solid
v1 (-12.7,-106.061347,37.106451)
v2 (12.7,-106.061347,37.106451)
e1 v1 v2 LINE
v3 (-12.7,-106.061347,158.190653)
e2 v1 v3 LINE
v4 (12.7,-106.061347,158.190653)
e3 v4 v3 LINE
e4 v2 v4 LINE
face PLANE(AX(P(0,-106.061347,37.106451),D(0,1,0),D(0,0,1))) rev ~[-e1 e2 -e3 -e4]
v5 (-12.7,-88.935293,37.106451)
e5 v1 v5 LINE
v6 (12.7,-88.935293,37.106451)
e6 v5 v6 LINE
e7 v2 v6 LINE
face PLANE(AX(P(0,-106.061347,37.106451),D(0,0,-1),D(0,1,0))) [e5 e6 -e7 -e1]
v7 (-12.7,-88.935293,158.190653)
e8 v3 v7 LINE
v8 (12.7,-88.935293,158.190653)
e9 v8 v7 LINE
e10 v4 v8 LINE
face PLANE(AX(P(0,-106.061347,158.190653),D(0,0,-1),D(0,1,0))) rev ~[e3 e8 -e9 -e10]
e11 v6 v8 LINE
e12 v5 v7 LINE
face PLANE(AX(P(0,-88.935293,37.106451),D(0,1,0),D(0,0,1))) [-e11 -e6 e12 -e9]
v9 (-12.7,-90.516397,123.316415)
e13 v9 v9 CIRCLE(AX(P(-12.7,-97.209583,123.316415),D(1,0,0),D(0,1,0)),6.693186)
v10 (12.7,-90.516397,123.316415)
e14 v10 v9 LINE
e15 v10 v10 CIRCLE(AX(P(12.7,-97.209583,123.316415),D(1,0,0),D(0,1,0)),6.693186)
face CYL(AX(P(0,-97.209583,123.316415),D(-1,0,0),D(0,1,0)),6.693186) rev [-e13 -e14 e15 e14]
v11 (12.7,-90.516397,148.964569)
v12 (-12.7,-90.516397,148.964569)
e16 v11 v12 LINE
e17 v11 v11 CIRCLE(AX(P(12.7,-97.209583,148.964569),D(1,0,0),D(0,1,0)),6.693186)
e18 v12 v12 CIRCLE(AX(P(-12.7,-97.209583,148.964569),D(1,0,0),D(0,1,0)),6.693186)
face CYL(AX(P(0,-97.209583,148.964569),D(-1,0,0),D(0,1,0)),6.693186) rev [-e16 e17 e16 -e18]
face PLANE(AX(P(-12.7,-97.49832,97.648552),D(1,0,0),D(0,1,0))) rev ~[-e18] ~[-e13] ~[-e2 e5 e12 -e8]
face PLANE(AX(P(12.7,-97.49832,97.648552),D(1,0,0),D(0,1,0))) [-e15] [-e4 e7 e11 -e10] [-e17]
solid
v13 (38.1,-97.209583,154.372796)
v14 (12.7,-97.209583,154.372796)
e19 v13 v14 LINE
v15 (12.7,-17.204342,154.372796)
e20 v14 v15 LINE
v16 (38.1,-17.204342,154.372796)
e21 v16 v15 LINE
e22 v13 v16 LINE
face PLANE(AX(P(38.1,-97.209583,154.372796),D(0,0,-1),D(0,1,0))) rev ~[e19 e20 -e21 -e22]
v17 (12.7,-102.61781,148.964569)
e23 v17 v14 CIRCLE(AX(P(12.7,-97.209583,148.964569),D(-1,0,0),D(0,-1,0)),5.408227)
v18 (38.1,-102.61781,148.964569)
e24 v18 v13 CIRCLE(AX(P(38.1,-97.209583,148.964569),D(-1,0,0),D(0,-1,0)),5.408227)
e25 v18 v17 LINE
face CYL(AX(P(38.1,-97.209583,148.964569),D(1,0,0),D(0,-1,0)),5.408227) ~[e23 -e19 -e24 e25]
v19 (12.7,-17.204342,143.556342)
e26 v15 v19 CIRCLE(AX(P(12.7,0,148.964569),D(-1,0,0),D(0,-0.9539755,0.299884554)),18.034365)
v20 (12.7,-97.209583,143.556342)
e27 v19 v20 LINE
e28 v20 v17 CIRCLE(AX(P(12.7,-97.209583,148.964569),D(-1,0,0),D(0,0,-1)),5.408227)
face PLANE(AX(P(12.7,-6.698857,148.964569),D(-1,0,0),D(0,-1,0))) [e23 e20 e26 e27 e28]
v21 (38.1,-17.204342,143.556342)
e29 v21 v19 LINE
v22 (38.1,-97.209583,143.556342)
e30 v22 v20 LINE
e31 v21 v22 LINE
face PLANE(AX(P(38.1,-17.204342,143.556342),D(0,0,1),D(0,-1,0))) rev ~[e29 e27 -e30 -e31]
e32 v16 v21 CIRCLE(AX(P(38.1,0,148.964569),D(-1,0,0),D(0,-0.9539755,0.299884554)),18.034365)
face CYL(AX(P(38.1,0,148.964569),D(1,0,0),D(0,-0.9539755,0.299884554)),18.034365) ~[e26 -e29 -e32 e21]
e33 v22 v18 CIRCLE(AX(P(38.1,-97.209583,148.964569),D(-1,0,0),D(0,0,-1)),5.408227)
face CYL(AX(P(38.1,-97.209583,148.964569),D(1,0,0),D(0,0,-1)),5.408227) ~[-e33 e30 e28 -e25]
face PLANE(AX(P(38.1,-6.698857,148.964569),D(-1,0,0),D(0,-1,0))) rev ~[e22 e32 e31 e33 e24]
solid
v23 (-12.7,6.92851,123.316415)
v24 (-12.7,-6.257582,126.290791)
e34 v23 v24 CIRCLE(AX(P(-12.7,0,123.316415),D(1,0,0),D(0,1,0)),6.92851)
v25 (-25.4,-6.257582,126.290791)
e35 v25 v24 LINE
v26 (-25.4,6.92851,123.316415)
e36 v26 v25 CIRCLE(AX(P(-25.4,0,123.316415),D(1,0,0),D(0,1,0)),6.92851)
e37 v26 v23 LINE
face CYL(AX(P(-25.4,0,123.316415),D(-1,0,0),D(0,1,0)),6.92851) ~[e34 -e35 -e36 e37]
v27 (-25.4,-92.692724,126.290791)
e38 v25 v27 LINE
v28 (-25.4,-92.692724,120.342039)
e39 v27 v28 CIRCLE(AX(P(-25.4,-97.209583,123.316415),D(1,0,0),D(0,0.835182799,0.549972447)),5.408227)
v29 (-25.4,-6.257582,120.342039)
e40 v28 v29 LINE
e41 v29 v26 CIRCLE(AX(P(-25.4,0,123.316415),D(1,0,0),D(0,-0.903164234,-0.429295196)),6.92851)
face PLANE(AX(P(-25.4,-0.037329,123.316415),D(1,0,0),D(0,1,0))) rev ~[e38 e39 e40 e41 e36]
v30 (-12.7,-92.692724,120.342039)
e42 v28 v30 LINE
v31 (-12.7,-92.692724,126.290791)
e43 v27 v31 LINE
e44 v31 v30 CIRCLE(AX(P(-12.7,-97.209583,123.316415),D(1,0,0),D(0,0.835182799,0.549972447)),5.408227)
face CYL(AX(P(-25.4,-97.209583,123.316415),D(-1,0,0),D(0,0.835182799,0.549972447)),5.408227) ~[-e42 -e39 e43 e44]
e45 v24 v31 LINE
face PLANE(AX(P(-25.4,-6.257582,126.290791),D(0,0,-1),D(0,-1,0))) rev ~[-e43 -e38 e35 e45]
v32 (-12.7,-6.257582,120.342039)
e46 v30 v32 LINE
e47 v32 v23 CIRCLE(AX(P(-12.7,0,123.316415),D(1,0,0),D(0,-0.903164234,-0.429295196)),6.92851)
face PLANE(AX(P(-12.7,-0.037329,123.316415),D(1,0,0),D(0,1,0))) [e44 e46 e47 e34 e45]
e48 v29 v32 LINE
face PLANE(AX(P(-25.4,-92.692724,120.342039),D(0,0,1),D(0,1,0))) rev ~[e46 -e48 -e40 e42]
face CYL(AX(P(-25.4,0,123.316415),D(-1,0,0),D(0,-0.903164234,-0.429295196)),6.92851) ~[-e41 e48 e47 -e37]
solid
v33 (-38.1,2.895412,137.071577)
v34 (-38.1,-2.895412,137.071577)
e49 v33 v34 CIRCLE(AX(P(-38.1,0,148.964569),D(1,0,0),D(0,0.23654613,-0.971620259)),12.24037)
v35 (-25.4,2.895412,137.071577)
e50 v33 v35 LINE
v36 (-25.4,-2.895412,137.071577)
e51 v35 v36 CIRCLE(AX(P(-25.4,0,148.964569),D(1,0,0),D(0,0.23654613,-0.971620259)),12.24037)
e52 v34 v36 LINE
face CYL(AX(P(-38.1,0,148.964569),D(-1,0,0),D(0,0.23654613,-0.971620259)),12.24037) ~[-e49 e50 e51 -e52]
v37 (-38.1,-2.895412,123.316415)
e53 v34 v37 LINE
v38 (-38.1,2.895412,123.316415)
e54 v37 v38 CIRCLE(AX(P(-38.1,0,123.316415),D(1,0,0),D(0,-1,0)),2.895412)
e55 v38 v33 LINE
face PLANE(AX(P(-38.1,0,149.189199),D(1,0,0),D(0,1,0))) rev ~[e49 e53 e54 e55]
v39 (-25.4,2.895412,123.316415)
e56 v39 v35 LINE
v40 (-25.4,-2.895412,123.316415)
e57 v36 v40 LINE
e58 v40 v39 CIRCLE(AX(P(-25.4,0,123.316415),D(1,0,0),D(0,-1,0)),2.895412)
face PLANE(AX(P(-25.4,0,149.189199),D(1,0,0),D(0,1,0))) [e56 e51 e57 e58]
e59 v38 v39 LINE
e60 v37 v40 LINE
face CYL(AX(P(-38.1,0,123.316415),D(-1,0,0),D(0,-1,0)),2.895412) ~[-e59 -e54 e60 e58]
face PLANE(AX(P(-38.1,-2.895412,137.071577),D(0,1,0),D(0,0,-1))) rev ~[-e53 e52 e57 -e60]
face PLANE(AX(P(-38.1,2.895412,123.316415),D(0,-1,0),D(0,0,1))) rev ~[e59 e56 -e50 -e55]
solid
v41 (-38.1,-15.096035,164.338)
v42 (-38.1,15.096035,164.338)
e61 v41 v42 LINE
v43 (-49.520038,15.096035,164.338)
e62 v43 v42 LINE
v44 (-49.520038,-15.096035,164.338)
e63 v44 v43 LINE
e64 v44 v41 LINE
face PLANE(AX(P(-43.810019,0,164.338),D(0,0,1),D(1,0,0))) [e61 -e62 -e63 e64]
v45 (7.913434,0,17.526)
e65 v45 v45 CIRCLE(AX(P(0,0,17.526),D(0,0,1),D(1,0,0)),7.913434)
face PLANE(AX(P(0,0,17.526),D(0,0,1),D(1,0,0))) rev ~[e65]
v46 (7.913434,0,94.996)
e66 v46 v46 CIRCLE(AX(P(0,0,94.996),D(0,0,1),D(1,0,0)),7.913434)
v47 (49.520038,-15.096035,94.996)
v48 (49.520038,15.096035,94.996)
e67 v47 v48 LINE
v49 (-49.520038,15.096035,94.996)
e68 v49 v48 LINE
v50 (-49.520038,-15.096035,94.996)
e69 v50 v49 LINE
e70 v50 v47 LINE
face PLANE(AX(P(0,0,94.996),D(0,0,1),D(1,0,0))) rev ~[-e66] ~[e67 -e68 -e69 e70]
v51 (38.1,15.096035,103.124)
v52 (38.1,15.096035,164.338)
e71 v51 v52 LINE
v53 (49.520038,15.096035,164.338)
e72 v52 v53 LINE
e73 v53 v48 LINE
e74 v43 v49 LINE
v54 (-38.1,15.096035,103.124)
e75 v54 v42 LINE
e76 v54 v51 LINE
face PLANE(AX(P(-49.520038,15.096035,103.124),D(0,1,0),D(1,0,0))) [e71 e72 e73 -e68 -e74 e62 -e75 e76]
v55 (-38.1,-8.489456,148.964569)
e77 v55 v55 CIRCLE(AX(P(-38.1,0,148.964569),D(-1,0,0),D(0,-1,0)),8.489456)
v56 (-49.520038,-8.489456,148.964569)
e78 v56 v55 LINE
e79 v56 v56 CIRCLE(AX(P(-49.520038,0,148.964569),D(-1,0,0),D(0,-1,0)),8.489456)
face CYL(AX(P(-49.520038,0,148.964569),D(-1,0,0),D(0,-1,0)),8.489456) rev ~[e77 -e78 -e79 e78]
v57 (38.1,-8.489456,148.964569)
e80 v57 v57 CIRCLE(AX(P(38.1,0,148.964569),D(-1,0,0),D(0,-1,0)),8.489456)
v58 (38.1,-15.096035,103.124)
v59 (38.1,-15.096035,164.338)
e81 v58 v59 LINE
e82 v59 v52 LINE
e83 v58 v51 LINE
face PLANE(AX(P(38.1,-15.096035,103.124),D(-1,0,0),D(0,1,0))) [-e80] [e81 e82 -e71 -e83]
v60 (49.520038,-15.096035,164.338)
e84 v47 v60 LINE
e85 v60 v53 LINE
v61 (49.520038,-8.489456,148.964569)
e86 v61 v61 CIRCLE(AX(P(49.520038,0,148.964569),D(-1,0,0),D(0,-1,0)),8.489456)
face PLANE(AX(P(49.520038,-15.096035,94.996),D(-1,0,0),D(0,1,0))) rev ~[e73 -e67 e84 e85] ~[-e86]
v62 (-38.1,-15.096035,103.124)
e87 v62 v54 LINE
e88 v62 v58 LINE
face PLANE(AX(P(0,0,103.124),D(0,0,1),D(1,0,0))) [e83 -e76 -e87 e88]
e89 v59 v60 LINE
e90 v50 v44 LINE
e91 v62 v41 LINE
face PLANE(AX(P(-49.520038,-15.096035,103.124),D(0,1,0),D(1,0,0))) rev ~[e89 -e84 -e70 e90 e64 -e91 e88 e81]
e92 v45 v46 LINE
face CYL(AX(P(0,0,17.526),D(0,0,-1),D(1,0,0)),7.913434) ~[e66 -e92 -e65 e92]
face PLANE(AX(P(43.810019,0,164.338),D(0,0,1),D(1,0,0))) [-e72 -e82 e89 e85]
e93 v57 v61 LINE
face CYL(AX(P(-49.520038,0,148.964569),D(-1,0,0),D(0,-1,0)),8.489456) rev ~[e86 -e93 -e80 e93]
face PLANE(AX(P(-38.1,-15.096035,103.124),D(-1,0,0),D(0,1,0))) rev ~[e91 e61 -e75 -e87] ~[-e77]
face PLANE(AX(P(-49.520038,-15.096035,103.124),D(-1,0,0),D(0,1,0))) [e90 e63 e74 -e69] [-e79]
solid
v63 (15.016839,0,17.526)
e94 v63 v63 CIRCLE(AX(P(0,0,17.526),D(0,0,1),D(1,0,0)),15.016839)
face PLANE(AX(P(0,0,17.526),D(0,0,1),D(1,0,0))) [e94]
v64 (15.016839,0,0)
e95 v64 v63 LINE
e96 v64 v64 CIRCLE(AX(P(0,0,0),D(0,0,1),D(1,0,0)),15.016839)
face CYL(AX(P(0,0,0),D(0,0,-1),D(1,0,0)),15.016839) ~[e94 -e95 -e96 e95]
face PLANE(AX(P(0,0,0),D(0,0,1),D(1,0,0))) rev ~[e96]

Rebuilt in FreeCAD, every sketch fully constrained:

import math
import FreeCAD as App
import Part
import Sketcher
Q = App.Units.Quantity

doc = App.newDocument("Part")
body = doc.addObject("PartDesign::Body", "Body")

# Sketch on XY plane
sketch1 = body.newObject("Sketcher::SketchObject", "Sketch")
sketch1.AttachmentSupport = (doc.getObject("XY_Plane"), [""])
sketch1.MapMode = "FlatFace"
sketch1.addGeometry(Part.Circle(App.Vector(0, 0, 0), App.Vector(0, 0, 1), 15.016839), False)
sketch1.addConstraint([
    Sketcher.Constraint("Coincident", 0, 3, -1, 1),
    Sketcher.Constraint("Diameter", 0, Q("30.033678 mm")),
])
pad1 = body.newObject("PartDesign::Pad", "Pad")
pad1.Profile = sketch1
pad1.Length = Q("0.69 in")
body2 = doc.addObject("PartDesign::Body", "Body001")

# Sketch on XY plane
sketch2 = body2.newObject("Sketcher::SketchObject", "Sketch001")
sketch2.AttachmentSupport = (doc.getObject("XY_Plane001"), [""])
sketch2.MapMode = "FlatFace"
sketch2.AttachmentOffset = App.Placement(App.Vector(0, 0, 0.69 * 25.4), App.Rotation())
sketch2.addGeometry(Part.Circle(App.Vector(0, 0, 0), App.Vector(0, 0, 1), 7.913434), False)
sketch2.addConstraint([
    Sketcher.Constraint("Coincident", 0, 3, -1, 1),
    Sketcher.Constraint("Diameter", 0, Q("15.826869 mm")),
])
pad2 = body2.newObject("PartDesign::Pad", "Pad001")
pad2.Profile = sketch2
pad2.Length = Q("3.05 in")

# Sketch on XY plane
sketch3 = body2.newObject("Sketcher::SketchObject", "Sketch002")
sketch3.AttachmentSupport = (doc.getObject("XY_Plane001"), [""])
sketch3.MapMode = "FlatFace"
sketch3.AttachmentOffset = App.Placement(App.Vector(0, 0, 3.74 * 25.4), App.Rotation())
sketch3.addGeometry([
    Part.LineSegment(App.Vector(-49.520038, 15.096035, 0), App.Vector(-49.520038, -15.096035, 0)),
    Part.LineSegment(App.Vector(-49.520038, -15.096035, 0), App.Vector(49.520038, -15.096035, 0)),
    Part.LineSegment(App.Vector(49.520038, -15.096035, 0), App.Vector(49.520038, 15.096035, 0)),
    Part.LineSegment(App.Vector(49.520038, 15.096035, 0), App.Vector(-49.520038, 15.096035, 0)),
], False)
sketch3.addConstraint([
    Sketcher.Constraint("Coincident", 0, 2, 1, 1),
    Sketcher.Constraint("Coincident", 1, 2, 2, 1),
    Sketcher.Constraint("Coincident", 2, 2, 3, 1),
    Sketcher.Constraint("Coincident", 3, 2, 0, 1),
    Sketcher.Constraint("Vertical", 0),
    Sketcher.Constraint("Horizontal", 1),
    Sketcher.Constraint("Vertical", 2),
    Sketcher.Constraint("Horizontal", 3),
    Sketcher.Constraint("Symmetric", 0, 2, 2, 2, -1, 1),
    Sketcher.Constraint("DistanceY", 0, 2, 0, 1, Q("30.19207 mm")),
    Sketcher.Constraint("DistanceX", 1, 1, 1, 2, Q("99.040076 mm")),
])
pad3 = body2.newObject("PartDesign::Pad", "Pad002")
pad3.Profile = sketch3
pad3.Length = Q("0.32 in")

# Sketch on XY plane
sketch4 = body2.newObject("Sketcher::SketchObject", "Sketch003")
sketch4.AttachmentSupport = (doc.getObject("XY_Plane001"), [""])
sketch4.MapMode = "FlatFace"
sketch4.AttachmentOffset = App.Placement(App.Vector(0, 0, 4.06 * 25.4), App.Rotation())
sketch4.addGeometry([
    Part.LineSegment(App.Vector(-49.520038, 15.096035, 0), App.Vector(-49.520038, -15.096035, 0)),  # 0
    Part.LineSegment(App.Vector(-49.520038, -15.096035, 0), App.Vector(-38.1, -15.096035, 0)),  # 1
    Part.LineSegment(App.Vector(-38.1, -15.096035, 0), App.Vector(-38.1, 15.096035, 0)),  # 2
    Part.LineSegment(App.Vector(-38.1, 15.096035, 0), App.Vector(-49.520038, 15.096035, 0)),  # 3
    Part.LineSegment(App.Vector(38.1, 15.096035, 0), App.Vector(38.1, -15.096035, 0)),  # 4
    Part.LineSegment(App.Vector(38.1, -15.096035, 0), App.Vector(49.520038, -15.096035, 0)),  # 5
    Part.LineSegment(App.Vector(49.520038, -15.096035, 0), App.Vector(49.520038, 15.096035, 0)),  # 6
    Part.LineSegment(App.Vector(49.520038, 15.096035, 0), App.Vector(38.1, 15.096035, 0)),  # 7
], False)
sketch4.addConstraint([
    Sketcher.Constraint("Coincident", 0, 2, 1, 1),
    Sketcher.Constraint("Coincident", 1, 2, 2, 1),
    Sketcher.Constraint("Coincident", 2, 2, 3, 1),
    Sketcher.Constraint("Coincident", 3, 2, 0, 1),
    Sketcher.Constraint("Coincident", 4, 2, 5, 1),
    Sketcher.Constraint("Coincident", 5, 2, 6, 1),
    Sketcher.Constraint("Coincident", 6, 2, 7, 1),
    Sketcher.Constraint("Coincident", 7, 2, 4, 1),
    Sketcher.Constraint("Vertical", 0),
    Sketcher.Constraint("Horizontal", 1),
    Sketcher.Constraint("Vertical", 2),
    Sketcher.Constraint("Horizontal", 3),
    Sketcher.Constraint("Vertical", 4),
    Sketcher.Constraint("Horizontal", 5),
    Sketcher.Constraint("Vertical", 6),
    Sketcher.Constraint("Horizontal", 7),
    Sketcher.Constraint("Symmetric", 2, 2, 4, 2, -1, 1),
    Sketcher.Constraint("Symmetric", 0, 2, 6, 2, -1, 1),
    Sketcher.Constraint("Horizontal", 1, 2, 4, 2),
    Sketcher.Constraint("DistanceX", 1, 2, 4, 2, Q("3 in")),
    Sketcher.Constraint("DistanceX", 1, 1, 1, 2, Q("11.420038 mm")),
    Sketcher.Constraint("DistanceY", 0, 2, 0, 1, Q("30.19207 mm")),
])
pad4 = body2.newObject("PartDesign::Pad", "Pad003")
pad4.Profile = sketch4
pad4.Length = Q("2.41 in")

# Sketch on YZ plane
sketch5 = body2.newObject("Sketcher::SketchObject", "Sketch004")
sketch5.AttachmentSupport = (doc.getObject("YZ_Plane001"), [""])
sketch5.MapMode = "FlatFace"
sketch5.AttachmentOffset = App.Placement(App.Vector(0, 0, -49.520038), App.Rotation())
sketch5.addGeometry(Part.Circle(App.Vector(0, 148.964569, 0), App.Vector(0, 0, 1), 8.489456), False)
sketch5.addConstraint([
    Sketcher.Constraint("PointOnObject", 0, 3, -2),
    Sketcher.Constraint("Diameter", 0, Q("16.978913 mm")),
    Sketcher.Constraint("DistanceY", -1, 1, 0, 3, Q("148.964569 mm")),
])
pocket1 = body2.newObject("PartDesign::Pocket", "Pocket")
pocket1.Profile = sketch5
pocket1.Type = "ThroughAll"
pocket1.Reversed = True
body3 = doc.addObject("PartDesign::Body", "Body002")

# Sketch on YZ plane
sketch6 = body3.newObject("Sketcher::SketchObject", "Sketch005")
sketch6.AttachmentSupport = (doc.getObject("YZ_Plane002"), [""])
sketch6.MapMode = "FlatFace"
sketch6.AttachmentOffset = App.Placement(App.Vector(0, 0, -1.5 * 25.4), App.Rotation())
sketch6.addGeometry([
    Part.ArcOfCircle(Part.Circle(App.Vector(0, 148.964569, 0), App.Vector(0, 0, 1), 12.24037), math.radians(-76.317221), math.radians(256.317221)),
    Part.LineSegment(App.Vector(-2.895412, 137.071577, 0), App.Vector(-2.895412, 123.316415, 0)),
    Part.ArcOfCircle(Part.Circle(App.Vector(0, 123.316415, 0), App.Vector(0, 0, 1), 2.895412), math.radians(180), math.radians(360)),
    Part.LineSegment(App.Vector(2.895412, 123.316415, 0), App.Vector(2.895412, 137.071577, 0)),
], False)
sketch6.addConstraint([
    Sketcher.Constraint("Coincident", 0, 2, 1, 1),
    Sketcher.Constraint("Tangent", 1, 2, 2, 1),
    Sketcher.Constraint("Tangent", 2, 2, 3, 1),
    Sketcher.Constraint("Coincident", 3, 2, 0, 1),
    Sketcher.Constraint("Vertical", 1),
    Sketcher.Constraint("Vertical", 3),
    Sketcher.Constraint("Symmetric", 0, 2, 3, 2, -2),
    Sketcher.Constraint("Radius", 0, Q("12.24037 mm")),
    Sketcher.Constraint("Radius", 2, Q("2.895412 mm")),
    Sketcher.Constraint("DistanceY", 1, 2, 1, 1, Q("13.755162 mm")),
    Sketcher.Constraint("DistanceY", -1, 1, 0, 3, Q("148.964569 mm")),
])
pad5 = body3.newObject("PartDesign::Pad", "Pad004")
pad5.Profile = sketch6
pad5.Length = Q("0.5 in")
body4 = doc.addObject("PartDesign::Body", "Body003")

# Sketch on YZ plane
sketch7 = body4.newObject("Sketcher::SketchObject", "Sketch006")
sketch7.AttachmentSupport = (doc.getObject("YZ_Plane003"), [""])
sketch7.MapMode = "FlatFace"
sketch7.AttachmentOffset = App.Placement(App.Vector(0, 0, 1.5 * 25.4), App.Rotation())
sketch7.addGeometry([
    Part.LineSegment(App.Vector(-17.204342, 143.556342, 0), App.Vector(-97.209583, 143.556342, 0)),  # 0
    Part.ArcOfCircle(Part.Circle(App.Vector(-97.209583, 148.964569, 0), App.Vector(0, 0, 1), 5.408227), math.radians(180), math.radians(270)),  # 1
    Part.ArcOfCircle(Part.Circle(App.Vector(-97.209583, 148.964569, 0), App.Vector(0, 0, 1), 5.408227), math.radians(90), math.radians(180)),  # 2
    Part.LineSegment(App.Vector(-97.209583, 154.372796, 0), App.Vector(-17.204342, 154.372796, 0)),  # 3
    Part.ArcOfCircle(Part.Circle(App.Vector(0, 148.964569, 0), App.Vector(0, 0, 1), 18.034365), math.radians(-162.549331), math.radians(162.549331)),  # 4
], False)
sketch7.addConstraint([
    Sketcher.Constraint("Tangent", 0, 2, 1, 2),
    Sketcher.Constraint("Tangent", 1, 1, 2, 2),
    Sketcher.Constraint("Tangent", 2, 1, 3, 1),
    Sketcher.Constraint("Coincident", 3, 2, 4, 2),
    Sketcher.Constraint("Coincident", 4, 1, 0, 1),
    Sketcher.Constraint("Horizontal", 0),
    Sketcher.Constraint("Horizontal", 3),
    Sketcher.Constraint("Equal", 1, 2),
    Sketcher.Constraint("PointOnObject", 4, 3, -2),
    Sketcher.Constraint("Horizontal", 2, 3, 4, 3),
    Sketcher.Constraint("Horizontal", 4, 3, 1, 1),
    Sketcher.Constraint("Radius", 1, Q("5.408227 mm")),
    Sketcher.Constraint("Radius", 4, Q("18.034365 mm")),
    Sketcher.Constraint("DistanceX", 0, 2, 0, 1, Q("80.005241 mm")),
    Sketcher.Constraint("DistanceY", -1, 1, 1, 3, Q("148.964569 mm")),
])
pad6 = body4.newObject("PartDesign::Pad", "Pad005")
pad6.Profile = sketch7
pad6.Length = Q("1 in")
pad6.Reversed = True
body5 = doc.addObject("PartDesign::Body", "Body004")

# Sketch on YZ plane
sketch8 = body5.newObject("Sketcher::SketchObject", "Sketch007")
sketch8.AttachmentSupport = (doc.getObject("YZ_Plane004"), [""])
sketch8.MapMode = "FlatFace"
sketch8.AttachmentOffset = App.Placement(App.Vector(0, 0, -1 * 25.4), App.Rotation())
sketch8.addGeometry([
    Part.ArcOfCircle(Part.Circle(App.Vector(0, 123.316415, 0), App.Vector(0, 0, 1), 6.92851), math.radians(-154.57716), math.radians(0)),  # 0
    Part.ArcOfCircle(Part.Circle(App.Vector(0, 123.316415, 0), App.Vector(0, 0, 1), 6.92851), math.radians(0), math.radians(154.57716)),  # 1
    Part.LineSegment(App.Vector(-6.257582, 126.290791, 0), App.Vector(-92.692724, 126.290791, 0)),  # 2
    Part.ArcOfCircle(Part.Circle(App.Vector(-97.209583, 123.316415, 0), App.Vector(0, 0, 1), 5.408227), math.radians(33.365123), math.radians(326.634877)),  # 3
    Part.LineSegment(App.Vector(-92.692724, 120.342039, 0), App.Vector(-6.257582, 120.342039, 0)),  # 4
], False)
sketch8.addConstraint([
    Sketcher.Constraint("Tangent", 0, 2, 1, 1),
    Sketcher.Constraint("Coincident", 1, 2, 2, 1),
    Sketcher.Constraint("Coincident", 2, 2, 3, 1),
    Sketcher.Constraint("Coincident", 3, 2, 4, 1),
    Sketcher.Constraint("Coincident", 4, 2, 0, 1),
    Sketcher.Constraint("Horizontal", 2),
    Sketcher.Constraint("Horizontal", 4),
    Sketcher.Constraint("Equal", 0, 1),
    Sketcher.Constraint("PointOnObject", 0, 3, -2),
    Sketcher.Constraint("Horizontal", 1, 3, 3, 3),
    Sketcher.Constraint("Horizontal", 3, 3, 0, 2),
    Sketcher.Constraint("Vertical", 2, 2, 3, 2),
    Sketcher.Constraint("Radius", 0, Q("6.92851 mm")),
    Sketcher.Constraint("Radius", 3, Q("5.408227 mm")),
    Sketcher.Constraint("DistanceX", 2, 2, 2, 1, Q("86.435142 mm")),
    Sketcher.Constraint("DistanceX", 3, 3, 1, 2, Q("90.952 mm")),
    Sketcher.Constraint("DistanceY", -1, 1, 1, 2, Q("126.290791 mm")),
])
pad7 = body5.newObject("PartDesign::Pad", "Pad006")
pad7.Profile = sketch8
pad7.Length = Q("0.5 in")
body6 = doc.addObject("PartDesign::Body", "Body005")

# Sketch on YZ plane
sketch9 = body6.newObject("Sketcher::SketchObject", "Sketch008")
sketch9.AttachmentSupport = (doc.getObject("YZ_Plane005"), [""])
sketch9.MapMode = "FlatFace"
sketch9.addGeometry([
    Part.LineSegment(App.Vector(-106.061347, 158.190653, 0), App.Vector(-106.061347, 37.106451, 0)),  # 0
    Part.LineSegment(App.Vector(-106.061347, 37.106451, 0), App.Vector(-88.935293, 37.106451, 0)),  # 1
    Part.LineSegment(App.Vector(-88.935293, 37.106451, 0), App.Vector(-88.935293, 158.190653, 0)),  # 2
    Part.LineSegment(App.Vector(-88.935293, 158.190653, 0), App.Vector(-106.061347, 158.190653, 0)),  # 3
    Part.Circle(App.Vector(-97.209583, 123.316415, 0), App.Vector(0, 0, 1), 6.693186),  # 4
    Part.Circle(App.Vector(-97.209583, 148.964569, 0), App.Vector(0, 0, 1), 6.693186),  # 5
], False)
sketch9.addConstraint([
    Sketcher.Constraint("Coincident", 0, 2, 1, 1),
    Sketcher.Constraint("Coincident", 1, 2, 2, 1),
    Sketcher.Constraint("Coincident", 2, 2, 3, 1),
    Sketcher.Constraint("Coincident", 3, 2, 0, 1),
    Sketcher.Constraint("Vertical", 0),
    Sketcher.Constraint("Horizontal", 1),
    Sketcher.Constraint("Vertical", 2),
    Sketcher.Constraint("Horizontal", 3),
    Sketcher.Constraint("Equal", 4, 5),
    Sketcher.Constraint("Vertical", 4, 3, 5, 3),
    Sketcher.Constraint("Diameter", 4, Q("13.386373 mm")),
    Sketcher.Constraint("DistanceX", 1, 1, 1, 2, Q("17.126054 mm")),
    Sketcher.Constraint("DistanceY", 0, 2, 0, 1, Q("121.084202 mm")),
    Sketcher.Constraint("DistanceY", -1, 1, 5, 3, Q("148.964569 mm")),
    Sketcher.Constraint("DistanceY", -1, 1, 0, 2, Q("37.106451 mm")),
    Sketcher.Constraint("DistanceX", 4, 3, 1, 2, Q("8.27429 mm")),
    Sketcher.Constraint("DistanceY", 4, 3, 2, 2, Q("34.874238 mm")),
    Sketcher.Constraint("DistanceX", 4, 3, -1, 1, Q("97.209583 mm")),
])
pad8 = body6.newObject("PartDesign::Pad", "Pad007")
pad8.Profile = sketch9
pad8.Length = Q("1 in")
pad8.Midplane = True

doc.recompute()
